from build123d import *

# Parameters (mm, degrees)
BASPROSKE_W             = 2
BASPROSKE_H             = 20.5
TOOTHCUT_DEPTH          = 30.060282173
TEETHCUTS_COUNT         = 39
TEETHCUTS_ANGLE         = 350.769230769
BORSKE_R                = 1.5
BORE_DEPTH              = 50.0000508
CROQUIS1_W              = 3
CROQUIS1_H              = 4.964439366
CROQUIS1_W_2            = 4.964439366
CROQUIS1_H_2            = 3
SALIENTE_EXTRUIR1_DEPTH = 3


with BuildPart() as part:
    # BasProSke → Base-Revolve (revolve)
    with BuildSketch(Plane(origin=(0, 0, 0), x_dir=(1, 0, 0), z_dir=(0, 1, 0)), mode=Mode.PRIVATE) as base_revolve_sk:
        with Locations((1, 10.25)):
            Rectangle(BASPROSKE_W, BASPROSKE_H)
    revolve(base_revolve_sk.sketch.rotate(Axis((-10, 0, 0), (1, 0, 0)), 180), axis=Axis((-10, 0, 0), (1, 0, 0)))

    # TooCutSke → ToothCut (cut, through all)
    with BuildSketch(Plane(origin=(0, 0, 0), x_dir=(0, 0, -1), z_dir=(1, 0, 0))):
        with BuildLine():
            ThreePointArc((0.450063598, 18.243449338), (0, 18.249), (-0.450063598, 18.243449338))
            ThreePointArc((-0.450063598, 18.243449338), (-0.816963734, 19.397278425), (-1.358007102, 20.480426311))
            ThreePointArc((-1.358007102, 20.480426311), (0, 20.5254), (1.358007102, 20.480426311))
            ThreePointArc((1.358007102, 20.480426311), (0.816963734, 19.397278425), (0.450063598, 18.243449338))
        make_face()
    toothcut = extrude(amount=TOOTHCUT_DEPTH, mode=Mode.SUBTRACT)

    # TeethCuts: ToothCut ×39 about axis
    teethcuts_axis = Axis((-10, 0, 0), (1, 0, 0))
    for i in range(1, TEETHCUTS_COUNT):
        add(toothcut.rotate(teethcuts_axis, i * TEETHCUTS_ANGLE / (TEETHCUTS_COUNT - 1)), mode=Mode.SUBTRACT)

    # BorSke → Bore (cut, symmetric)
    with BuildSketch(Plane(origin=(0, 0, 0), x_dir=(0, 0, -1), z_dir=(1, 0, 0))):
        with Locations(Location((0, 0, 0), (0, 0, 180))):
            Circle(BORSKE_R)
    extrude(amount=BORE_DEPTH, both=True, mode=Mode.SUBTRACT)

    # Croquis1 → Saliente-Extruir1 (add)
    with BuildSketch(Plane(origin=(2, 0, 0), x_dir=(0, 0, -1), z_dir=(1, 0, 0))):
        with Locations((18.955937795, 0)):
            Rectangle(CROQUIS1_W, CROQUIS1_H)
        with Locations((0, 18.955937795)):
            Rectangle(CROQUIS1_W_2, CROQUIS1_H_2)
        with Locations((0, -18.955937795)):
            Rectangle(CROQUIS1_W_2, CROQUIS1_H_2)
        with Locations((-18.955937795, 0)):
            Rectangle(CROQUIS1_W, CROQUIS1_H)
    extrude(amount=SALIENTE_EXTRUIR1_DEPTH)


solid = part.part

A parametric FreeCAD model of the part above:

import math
import FreeCAD as App
import Part
import Sketcher

V = App.Vector

doc = App.newDocument("Part")
body = doc.addObject("PartDesign::Body", "Body")

sketch1 = body.newObject("Sketcher::SketchObject", "Sketch")
sketch1.AttachmentSupport = (doc.getObject("XZ_Plane"), [""])
sketch1.MapMode = "FlatFace"
sketch1.addGeometry([
    Part.LineSegment(V(0, -20.5, 0), V(0, 0, 0)),
    Part.LineSegment(V(0, 0, 0), V(2, 0, 0)),
    Part.LineSegment(V(2, 0, 0), V(2, -20.5, 0)),
    Part.LineSegment(V(2, -20.5, 0), V(0, -20.5, 0)),
], False)
sketch1.addConstraint([
    Sketcher.Constraint("Coincident", 0, 2, 1, 1),
    Sketcher.Constraint("Coincident", 1, 2, 2, 1),
    Sketcher.Constraint("Coincident", 2, 2, 3, 1),
    Sketcher.Constraint("Coincident", 3, 2, 0, 1),
    Sketcher.Constraint("Vertical", 0),
    Sketcher.Constraint("Horizontal", 1),
    Sketcher.Constraint("Vertical", 2),
    Sketcher.Constraint("Horizontal", 3),
    Sketcher.Constraint("Coincident", 0, 2, -1, 1),
    Sketcher.Constraint("DistanceX", 1, 1, 1, 2, 2.0),
    Sketcher.Constraint("DistanceY", 0, 1, 0, 2, 20.5),
])
revolution = body.newObject("PartDesign::Revolution", "Revolution")
revolution.Profile = sketch1
revolution.ReferenceAxis = (sketch1, ["H_Axis"])
revolution.Angle = 360

sketch2 = body.newObject("Sketcher::SketchObject", "Sketch001")
sketch2.AttachmentSupport = (doc.getObject("YZ_Plane"), [""])
sketch2.MapMode = "FlatFace"
sketch2.addGeometry([
    Part.ArcOfCircle(Part.Circle(V(0, 0, 0), V(0, 0, 1), 18.2), math.radians(-1.41), math.radians(1.41)),
    Part.ArcOfCircle(Part.Circle(V(16.5, -8, 0), V(0, 0, 1), 7.8), math.radians(59.01), math.radians(76.81)),
    Part.ArcOfCircle(Part.Circle(V(0, 0, 0), V(0, 0, 1), 20.5), math.radians(-3.79), math.radians(3.79)),
    Part.ArcOfCircle(Part.Circle(V(16.5, 8, 0), V(0, 0, 1), 7.8), math.radians(-76.81), math.radians(-59.01)),
], False)
sketch2.addConstraint([
    Sketcher.Constraint("Coincident", 0, 1, 1, 2),
    Sketcher.Constraint("Coincident", 1, 1, 2, 1),
    Sketcher.Constraint("Coincident", 2, 2, 3, 2),
    Sketcher.Constraint("Coincident", 3, 1, 0, 2),
    Sketcher.Constraint("Coincident", 0, 3, -1, 1),
    Sketcher.Constraint("Coincident", 2, 3, -1, 1),
    Sketcher.Constraint("Equal", 1, 3),
    Sketcher.Constraint("Symmetric", 1, 3, 3, 3, -1),
    Sketcher.Constraint("Radius", 1, 7.8),
    Sketcher.Constraint("Radius", 0, 18.248999),
    Sketcher.Constraint("Radius", 2, 20.5254),
    Sketcher.Constraint("DistanceY", 0, 1, 3, 3, 8.4944),
    Sketcher.Constraint("DistanceY", 1, 3, 3, 3, 16.088672),
])
pocket1 = body.newObject("PartDesign::Pocket", "Pocket")
pocket1.Profile = sketch2
pocket1.Type = "ThroughAll"
pocket1.Reversed = True
doc.recompute()

polarpattern = body.newObject("PartDesign::PolarPattern", "PolarPattern")
polarpattern.Originals = [pocket1]
polarpattern.Axis = (doc.getObject("X_Axis"), [""])
polarpattern.Angle = 360
polarpattern.Occurrences = 39
body.Tip = polarpattern

sketch3 = body.newObject("Sketcher::SketchObject", "Sketch002")
sketch3.AttachmentSupport = (doc.getObject("YZ_Plane"), [""])
sketch3.MapMode = "FlatFace"
sketch3.addGeometry(Part.Circle(V(0, 0, 0), V(0, 0, 1), 1.5), False)
sketch3.addConstraint([
    Sketcher.Constraint("Coincident", 0, 3, -1, 1),
    Sketcher.Constraint("Diameter", 0, 3.0),
])
pocket2 = body.newObject("PartDesign::Pocket", "Pocket001")
pocket2.Profile = sketch3
pocket2.Length = 100.000102
pocket2.Midplane = True

sketch4 = body.newObject("Sketcher::SketchObject", "Sketch003")
sketch4.AttachmentSupport = (doc.getObject("YZ_Plane"), [""])
sketch4.MapMode = "FlatFace"
sketch4.AttachmentOffset = App.Placement(V(0, 0, 2), App.Rotation())
sketch4.addGeometry([
    Part.LineSegment(V(2.5, -17.5, 0), V(-2.5, -17.5, 0)),
    Part.LineSegment(V(-2.5, -17.5, 0), V(-2.5, -20.5, 0)),
    Part.LineSegment(V(-2.5, -20.5, 0), V(2.5, -20.5, 0)),
    Part.LineSegment(V(2.5, -20.5, 0), V(2.5, -17.5, 0)),
    Part.LineSegment(V(20.5, 2.5, 0), V(17.5, 2.5, 0)),
    Part.LineSegment(V(17.5, 2.5, 0), V(17.5, -2.5, 0)),
    Part.LineSegment(V(17.5, -2.5, 0), V(20.5, -2.5, 0)),
    Part.LineSegment(V(20.5, -2.5, 0), V(20.5, 2.5, 0)),
    Part.LineSegment(V(-17.5, 2.5, 0), V(-20.5, 2.5, 0)),
    Part.LineSegment(V(-20.5, 2.5, 0), V(-20.5, -2.5, 0)),
    Part.LineSegment(V(-20.5, -2.5, 0), V(-17.5, -2.5, 0)),
    Part.LineSegment(V(-17.5, -2.5, 0), V(-17.5, 2.5, 0)),
    Part.LineSegment(V(2.5, 20.5, 0), V(-2.5, 20.5, 0)),
    Part.LineSegment(V(-2.5, 20.5, 0), V(-2.5, 17.5, 0)),
    Part.LineSegment(V(-2.5, 17.5, 0), V(2.5, 17.5, 0)),
    Part.LineSegment(V(2.5, 17.5, 0), V(2.5, 20.5, 0)),
], False)
sketch4.addConstraint([
    Sketcher.Constraint("Coincident", 0, 2, 1, 1),
    Sketcher.Constraint("Coincident", 1, 2, 2, 1),
    Sketcher.Constraint("Coincident", 2, 2, 3, 1),
    Sketcher.Constraint("Coincident", 3, 2, 0, 1),
    Sketcher.Constraint("Coincident", 4, 2, 5, 1),
    Sketcher.Constraint("Coincident", 5, 2, 6, 1),
    Sketcher.Constraint("Coincident", 6, 2, 7, 1),
    Sketcher.Constraint("Coincident", 7, 2, 4, 1),
    Sketcher.Constraint("Coincident", 8, 2, 9, 1),
    Sketcher.Constraint("Coincident", 9, 2, 10, 1),
    Sketcher.Constraint("Coincident", 10, 2, 11, 1),
    Sketcher.Constraint("Coincident", 11, 2, 8, 1),
    Sketcher.Constraint("Coincident", 12, 2, 13, 1),
    Sketcher.Constraint("Coincident", 13, 2, 14, 1),
    Sketcher.Constraint("Coincident", 14, 2, 15, 1),
    Sketcher.Constraint("Coincident", 15, 2, 12, 1),
    Sketcher.Constraint("Horizontal", 0),
    Sketcher.Constraint("Vertical", 1),
    Sketcher.Constraint("Horizontal", 2),
    Sketcher.Constraint("Vertical", 3),
    Sketcher.Constraint("Horizontal", 4),
    Sketcher.Constraint("Vertical", 5),
    Sketcher.Constraint("Horizontal", 6),
    Sketcher.Constraint("Vertical", 7),
    Sketcher.Constraint("Horizontal", 8),
    Sketcher.Constraint("Vertical", 9),
    Sketcher.Constraint("Horizontal", 10),
    Sketcher.Constraint("Vertical", 11),
    Sketcher.Constraint("Horizontal", 12),
    Sketcher.Constraint("Vertical", 13),
    Sketcher.Constraint("Horizontal", 14),
    Sketcher.Constraint("Vertical", 15),
    Sketcher.Constraint("Symmetric", 6, 2, 8, 2, -1, 1),
    Sketcher.Constraint("Symmetric", 4, 2, 10, 2, -1, 1),
    Sketcher.Constraint("Symmetric", 2, 2, 12, 2, -1, 1),
    Sketcher.Constraint("Symmetric", 0, 2, 14, 2, -1, 1),
    Sketcher.Constraint("Horizontal", 7, 2, 8, 2),
    Sketcher.Constraint("Vertical", 1, 2, 12, 2),
    Sketcher.Constraint("Equal", 10, 1),
    Sketcher.Constraint("Equal", 14, 5),
    Sketcher.Constraint("DistanceX", 4, 2, 4, 1, 3.0),
    Sketcher.Constraint("DistanceX", 0, 2, 0, 1, 4.964439),
    Sketcher.Constraint("DistanceX", 3, 2, 4, 2, 14.973718),
    Sketcher.Constraint("DistanceY", 3, 2, 5, 2, 14.973718),
])
pad1 = body.newObject("PartDesign::Pad", "Pad")
pad1.Profile = sketch4
pad1.Length = 3

doc.recompute()
